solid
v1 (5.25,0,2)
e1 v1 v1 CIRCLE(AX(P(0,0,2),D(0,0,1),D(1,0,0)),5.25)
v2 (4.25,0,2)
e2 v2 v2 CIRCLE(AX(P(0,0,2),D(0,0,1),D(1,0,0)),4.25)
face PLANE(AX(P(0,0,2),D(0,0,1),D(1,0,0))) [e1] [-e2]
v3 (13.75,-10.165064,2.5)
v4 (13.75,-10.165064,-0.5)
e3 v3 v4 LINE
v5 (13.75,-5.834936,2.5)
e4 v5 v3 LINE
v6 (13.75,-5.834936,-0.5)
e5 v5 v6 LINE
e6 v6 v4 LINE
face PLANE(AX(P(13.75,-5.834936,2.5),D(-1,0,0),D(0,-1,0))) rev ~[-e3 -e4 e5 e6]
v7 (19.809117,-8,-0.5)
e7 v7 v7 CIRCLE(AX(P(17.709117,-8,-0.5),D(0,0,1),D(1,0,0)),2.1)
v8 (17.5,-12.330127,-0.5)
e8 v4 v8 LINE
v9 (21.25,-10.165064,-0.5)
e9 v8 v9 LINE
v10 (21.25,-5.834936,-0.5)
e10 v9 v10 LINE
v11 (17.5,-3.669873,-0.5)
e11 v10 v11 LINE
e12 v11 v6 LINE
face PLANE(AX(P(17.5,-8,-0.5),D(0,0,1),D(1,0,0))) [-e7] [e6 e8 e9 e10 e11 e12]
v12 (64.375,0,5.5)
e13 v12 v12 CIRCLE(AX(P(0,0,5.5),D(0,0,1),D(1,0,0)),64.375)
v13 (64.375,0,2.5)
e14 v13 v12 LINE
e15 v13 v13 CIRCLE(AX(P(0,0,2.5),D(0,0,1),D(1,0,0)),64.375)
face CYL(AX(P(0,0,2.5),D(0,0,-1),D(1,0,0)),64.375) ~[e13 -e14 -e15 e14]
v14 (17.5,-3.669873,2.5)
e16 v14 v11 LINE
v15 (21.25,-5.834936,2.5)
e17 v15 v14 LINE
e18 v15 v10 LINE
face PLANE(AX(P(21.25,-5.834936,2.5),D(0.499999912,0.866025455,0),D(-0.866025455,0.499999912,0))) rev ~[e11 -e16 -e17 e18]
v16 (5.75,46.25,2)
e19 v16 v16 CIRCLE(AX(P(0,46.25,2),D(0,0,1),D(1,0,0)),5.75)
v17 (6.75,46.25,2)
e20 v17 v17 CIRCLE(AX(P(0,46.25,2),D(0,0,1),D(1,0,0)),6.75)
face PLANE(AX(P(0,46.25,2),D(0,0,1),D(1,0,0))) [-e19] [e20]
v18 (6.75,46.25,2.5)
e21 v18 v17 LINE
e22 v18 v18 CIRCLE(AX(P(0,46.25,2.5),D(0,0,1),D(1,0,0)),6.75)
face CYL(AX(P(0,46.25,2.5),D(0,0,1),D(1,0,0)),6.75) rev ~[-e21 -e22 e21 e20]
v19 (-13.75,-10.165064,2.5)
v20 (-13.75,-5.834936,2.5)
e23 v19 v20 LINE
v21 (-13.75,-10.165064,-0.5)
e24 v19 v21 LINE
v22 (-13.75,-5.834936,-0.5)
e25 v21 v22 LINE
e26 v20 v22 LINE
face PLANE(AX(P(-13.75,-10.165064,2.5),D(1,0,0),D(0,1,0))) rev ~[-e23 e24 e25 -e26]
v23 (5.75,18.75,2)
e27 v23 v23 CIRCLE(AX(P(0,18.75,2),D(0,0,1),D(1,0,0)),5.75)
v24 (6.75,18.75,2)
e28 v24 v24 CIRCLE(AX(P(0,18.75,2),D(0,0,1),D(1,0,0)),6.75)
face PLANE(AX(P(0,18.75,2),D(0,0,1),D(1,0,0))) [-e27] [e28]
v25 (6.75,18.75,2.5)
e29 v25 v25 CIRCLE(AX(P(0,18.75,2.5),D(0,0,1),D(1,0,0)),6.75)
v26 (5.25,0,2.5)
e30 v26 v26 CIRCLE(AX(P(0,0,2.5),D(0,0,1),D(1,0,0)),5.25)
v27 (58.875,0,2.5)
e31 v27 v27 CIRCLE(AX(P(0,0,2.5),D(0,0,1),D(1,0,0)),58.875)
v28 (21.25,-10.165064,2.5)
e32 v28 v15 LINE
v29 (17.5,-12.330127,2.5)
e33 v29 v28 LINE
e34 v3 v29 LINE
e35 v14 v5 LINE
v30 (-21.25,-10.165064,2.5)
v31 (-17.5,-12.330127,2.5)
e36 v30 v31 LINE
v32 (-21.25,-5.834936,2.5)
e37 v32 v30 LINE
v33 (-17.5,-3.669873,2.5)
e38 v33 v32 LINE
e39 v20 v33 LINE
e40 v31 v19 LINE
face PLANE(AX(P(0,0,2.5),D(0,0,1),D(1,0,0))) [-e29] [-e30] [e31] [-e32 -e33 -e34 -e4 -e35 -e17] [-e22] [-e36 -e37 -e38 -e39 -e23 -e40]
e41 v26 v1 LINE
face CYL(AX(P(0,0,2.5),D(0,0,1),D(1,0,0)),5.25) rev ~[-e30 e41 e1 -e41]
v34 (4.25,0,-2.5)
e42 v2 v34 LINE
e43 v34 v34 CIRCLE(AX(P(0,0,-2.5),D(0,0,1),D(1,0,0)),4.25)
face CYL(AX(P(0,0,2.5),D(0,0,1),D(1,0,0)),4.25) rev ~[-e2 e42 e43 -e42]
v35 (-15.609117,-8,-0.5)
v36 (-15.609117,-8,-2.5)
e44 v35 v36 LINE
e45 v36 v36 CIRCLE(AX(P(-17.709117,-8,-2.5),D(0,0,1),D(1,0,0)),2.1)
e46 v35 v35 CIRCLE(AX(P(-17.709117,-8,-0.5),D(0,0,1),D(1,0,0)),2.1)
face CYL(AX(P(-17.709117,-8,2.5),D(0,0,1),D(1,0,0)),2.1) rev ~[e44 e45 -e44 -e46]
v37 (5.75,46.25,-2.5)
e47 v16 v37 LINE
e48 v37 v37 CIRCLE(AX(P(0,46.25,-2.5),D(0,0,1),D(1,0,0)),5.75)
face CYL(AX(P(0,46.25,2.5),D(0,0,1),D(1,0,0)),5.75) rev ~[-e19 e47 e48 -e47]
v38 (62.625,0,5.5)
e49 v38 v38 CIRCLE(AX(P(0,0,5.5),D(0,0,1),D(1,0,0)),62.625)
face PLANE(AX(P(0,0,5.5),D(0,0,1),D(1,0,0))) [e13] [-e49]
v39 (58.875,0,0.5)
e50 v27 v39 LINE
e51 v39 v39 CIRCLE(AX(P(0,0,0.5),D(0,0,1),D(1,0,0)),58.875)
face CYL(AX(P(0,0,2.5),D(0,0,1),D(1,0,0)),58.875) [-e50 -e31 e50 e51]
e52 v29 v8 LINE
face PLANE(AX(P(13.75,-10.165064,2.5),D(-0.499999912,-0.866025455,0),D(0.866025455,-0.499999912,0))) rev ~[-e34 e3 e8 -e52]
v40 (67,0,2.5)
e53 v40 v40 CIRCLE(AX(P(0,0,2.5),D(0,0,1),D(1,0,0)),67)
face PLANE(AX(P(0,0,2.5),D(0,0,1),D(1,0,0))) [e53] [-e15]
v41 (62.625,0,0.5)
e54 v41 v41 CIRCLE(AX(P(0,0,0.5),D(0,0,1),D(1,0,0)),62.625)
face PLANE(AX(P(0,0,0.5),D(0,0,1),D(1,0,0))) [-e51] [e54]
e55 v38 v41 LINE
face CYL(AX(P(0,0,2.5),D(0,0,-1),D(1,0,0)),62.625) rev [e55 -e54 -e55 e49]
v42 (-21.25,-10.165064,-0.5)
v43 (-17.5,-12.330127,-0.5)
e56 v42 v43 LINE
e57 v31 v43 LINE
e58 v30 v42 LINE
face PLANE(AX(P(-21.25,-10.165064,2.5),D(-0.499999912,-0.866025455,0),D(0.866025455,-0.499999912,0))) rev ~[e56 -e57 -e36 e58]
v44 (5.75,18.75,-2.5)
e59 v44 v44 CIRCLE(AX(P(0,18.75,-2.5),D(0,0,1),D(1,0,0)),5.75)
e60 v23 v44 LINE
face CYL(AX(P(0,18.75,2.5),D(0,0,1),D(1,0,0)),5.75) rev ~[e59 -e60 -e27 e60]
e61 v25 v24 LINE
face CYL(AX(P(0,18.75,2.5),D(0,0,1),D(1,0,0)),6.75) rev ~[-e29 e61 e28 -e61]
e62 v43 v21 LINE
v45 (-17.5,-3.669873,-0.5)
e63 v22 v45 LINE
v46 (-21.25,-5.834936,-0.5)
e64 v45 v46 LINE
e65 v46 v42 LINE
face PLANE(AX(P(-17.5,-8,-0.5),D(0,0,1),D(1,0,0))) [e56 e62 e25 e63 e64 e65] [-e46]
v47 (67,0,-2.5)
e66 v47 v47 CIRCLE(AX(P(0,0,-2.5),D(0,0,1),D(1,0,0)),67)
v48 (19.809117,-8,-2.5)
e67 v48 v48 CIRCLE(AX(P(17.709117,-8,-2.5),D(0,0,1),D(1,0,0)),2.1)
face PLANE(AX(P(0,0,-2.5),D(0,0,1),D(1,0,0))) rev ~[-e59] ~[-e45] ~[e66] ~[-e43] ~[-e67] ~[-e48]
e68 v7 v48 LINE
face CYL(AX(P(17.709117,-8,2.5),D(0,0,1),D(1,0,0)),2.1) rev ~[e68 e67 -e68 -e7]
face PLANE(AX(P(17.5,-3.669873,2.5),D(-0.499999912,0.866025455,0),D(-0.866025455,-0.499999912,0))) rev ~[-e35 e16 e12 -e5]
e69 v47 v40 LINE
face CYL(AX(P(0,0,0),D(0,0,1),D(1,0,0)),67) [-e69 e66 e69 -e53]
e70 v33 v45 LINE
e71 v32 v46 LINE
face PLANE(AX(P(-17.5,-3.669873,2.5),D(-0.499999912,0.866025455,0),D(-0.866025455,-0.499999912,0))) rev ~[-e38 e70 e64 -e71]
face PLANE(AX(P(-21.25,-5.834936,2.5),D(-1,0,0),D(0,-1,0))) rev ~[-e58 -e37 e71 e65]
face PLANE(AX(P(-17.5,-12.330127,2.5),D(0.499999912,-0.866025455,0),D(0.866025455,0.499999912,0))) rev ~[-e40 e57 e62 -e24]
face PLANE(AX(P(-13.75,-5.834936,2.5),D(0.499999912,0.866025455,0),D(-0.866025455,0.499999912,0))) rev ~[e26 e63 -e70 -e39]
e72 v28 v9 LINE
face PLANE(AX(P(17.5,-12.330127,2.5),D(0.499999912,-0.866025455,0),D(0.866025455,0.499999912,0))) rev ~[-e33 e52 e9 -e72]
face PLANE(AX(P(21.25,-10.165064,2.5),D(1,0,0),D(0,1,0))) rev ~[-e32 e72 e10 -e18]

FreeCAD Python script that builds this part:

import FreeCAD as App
import Part
import Sketcher
from FreeCAD import Vector
Q = App.Units.Quantity

doc = App.newDocument("Part")
body = doc.addObject("PartDesign::Body", "Body")

# Sketch on XY plane
sketch1 = body.newObject("Sketcher::SketchObject", "Sketch")
sketch1.AttachmentSupport = (doc.getObject("XY_Plane"), [""])
sketch1.MapMode = "FlatFace"
sketch1.addGeometry(Part.Circle(Vector(0, 0, 0), Vector(0, 0, 1), 67), False)
sketch1.addConstraint(Sketcher.Constraint("Coincident", 0, 3, -1, 1))
sketch1.addConstraint(Sketcher.Constraint("Diameter", 0, 134.0))
pad1 = body.newObject("PartDesign::Pad", "Pad")
pad1.Profile = sketch1
pad1.Length = 5
pad1.Midplane = True

# Sketch on XY plane
sketch2 = body.newObject("Sketcher::SketchObject", "Sketch001")
sketch2.AttachmentSupport = (doc.getObject("XY_Plane"), [""])
sketch2.MapMode = "FlatFace"
sketch2.AttachmentOffset = App.Placement(Vector(0, 0, 2.5), App.Rotation())
sketch2.addGeometry(Part.Circle(Vector(0, 0, 0), Vector(0, 0, 1), 64), False)
sketch2.addGeometry(Part.Circle(Vector(0, 0, 0), Vector(0, 0, 1), 63), False)
sketch2.addConstraint(Sketcher.Constraint("Coincident", 0, 3, -1, 1))
sketch2.addConstraint(Sketcher.Constraint("Coincident", 1, 3, -1, 1))
sketch2.addConstraint(Sketcher.Constraint("Diameter", 0, 128.75))
sketch2.addConstraint(Sketcher.Constraint("Diameter", 1, 125.25))
pad2 = body.newObject("PartDesign::Pad", "Pad001")
pad2.Profile = sketch2
pad2.Length = 3

# Sketch on XY plane
sketch3 = body.newObject("Sketcher::SketchObject", "Sketch002")
sketch3.AttachmentSupport = (doc.getObject("XY_Plane"), [""])
sketch3.MapMode = "FlatFace"
sketch3.AttachmentOffset = App.Placement(Vector(0, 0, 2.5), App.Rotation())
sketch3.addGeometry(Part.Circle(Vector(0, 0, 0), Vector(0, 0, 1), 63), False)
sketch3.addGeometry(Part.Circle(Vector(0, 0, 0), Vector(0, 0, 1), 59), False)
sketch3.addConstraint(Sketcher.Constraint("Coincident", 0, 3, -1, 1))
sketch3.addConstraint(Sketcher.Constraint("Coincident", 1, 3, -1, 1))
sketch3.addConstraint(Sketcher.Constraint("Diameter", 0, 125.25))
sketch3.addConstraint(Sketcher.Constraint("Diameter", 1, 117.75))
pocket1 = body.newObject("PartDesign::Pocket", "Pocket")
pocket1.Profile = sketch3
pocket1.Length = 2

# Sketch on XY plane
sketch4 = body.newObject("Sketcher::SketchObject", "Sketch003")
sketch4.AttachmentSupport = (doc.getObject("XY_Plane"), [""])
sketch4.MapMode = "FlatFace"
sketch4.AttachmentOffset = App.Placement(Vector(0, 0, 2.5), App.Rotation())
sketch4.addGeometry(Part.Circle(Vector(0, 0, 0), Vector(0, 0, 1), 4.2), False)
sketch4.addConstraint(Sketcher.Constraint("Coincident", 0, 3, -1, 1))
sketch4.addConstraint(Sketcher.Constraint("Diameter", 0, 8.5))
pocket2 = body.newObject("PartDesign::Pocket", "Pocket001")
pocket2.Profile = sketch4
pocket2.Type = "ThroughAll"

# Sketch on XY plane
sketch5 = body.newObject("Sketcher::SketchObject", "Sketch004")
sketch5.AttachmentSupport = (doc.getObject("XY_Plane"), [""])
sketch5.MapMode = "FlatFace"
sketch5.AttachmentOffset = App.Placement(Vector(0, 0, 2.5), App.Rotation())
sketch5.addGeometry(Part.Circle(Vector(0, 19, 0), Vector(0, 0, 1), 6), False)
sketch5.addConstraint(Sketcher.Constraint("PointOnObject", 0, 3, -2))
sketch5.addConstraint(Sketcher.Constraint("Diameter", 0, 11.5))
sketch5.addConstraint(Sketcher.Constraint("DistanceY", -1, 1, 0, 3, 18.75))
pocket3 = body.newObject("PartDesign::Pocket", "Pocket002")
pocket3.Profile = sketch5
pocket3.Type = "ThroughAll"

# Sketch on XY plane
sketch6 = body.newObject("Sketcher::SketchObject", "Sketch005")
sketch6.AttachmentSupport = (doc.getObject("XY_Plane"), [""])
sketch6.MapMode = "FlatFace"
sketch6.AttachmentOffset = App.Placement(Vector(0, 0, 2.5), App.Rotation())
sketch6.addGeometry(Part.Circle(Vector(0, 46, 0), Vector(0, 0, 1), 6), False)
sketch6.addConstraint(Sketcher.Constraint("PointOnObject", 0, 3, -2))
sketch6.addConstraint(Sketcher.Constraint("Diameter", 0, 11.5))
sketch6.addConstraint(Sketcher.Constraint("DistanceY", -1, 1, 0, 3, 46.25))
pocket4 = body.newObject("PartDesign::Pocket", "Pocket003")
pocket4.Profile = sketch6
pocket4.Type = "ThroughAll"

# Sketch on XY plane
sketch7 = body.newObject("Sketcher::SketchObject", "Sketch006")
sketch7.AttachmentSupport = (doc.getObject("XY_Plane"), [""])
sketch7.MapMode = "FlatFace"
sketch7.AttachmentOffset = App.Placement(Vector(0, 0, 2.5), App.Rotation())
sketch7.addGeometry(Part.Circle(Vector(-17.7, -8, 0), Vector(0, 0, 1), 2.1), False)
sketch7.addGeometry(Part.Circle(Vector(17.7, -8, 0), Vector(0, 0, 1), 2.1), False)
sketch7.addConstraint(Sketcher.Constraint("Equal", 0, 1))
sketch7.addConstraint(Sketcher.Constraint("Symmetric", 0, 3, 1, 3, -2))
sketch7.addConstraint(Sketcher.Constraint("Diameter", 0, 4.2))
sketch7.addConstraint(Sketcher.Constraint("DistanceY", 0, 3, -1, 1, 8.0))
sketch7.addConstraint(Sketcher.Constraint("DistanceX", 0, 3, -1, 1, 17.709117))
pocket5 = body.newObject("PartDesign::Pocket", "Pocket004")
pocket5.Profile = sketch7
pocket5.Type = "ThroughAll"

# Sketch on XY plane
sketch8 = body.newObject("Sketcher::SketchObject", "Sketch007")
sketch8.AttachmentSupport = (doc.getObject("XY_Plane"), [""])
sketch8.MapMode = "FlatFace"
sketch8.AttachmentOffset = App.Placement(Vector(0, 0, 2.5), App.Rotation())
sketch8.addGeometry(Part.Circle(Vector(0, 0, 0), Vector(0, 0, 1), 5), False)
sketch8.addConstraint(Sketcher.Constraint("Coincident", 0, 3, -1, 1))
sketch8.addConstraint(Sketcher.Constraint("Diameter", 0, 10.5))
pocket6 = body.newObject("PartDesign::Pocket", "Pocket005")
pocket6.Profile = sketch8
pocket6.Length = 0.5

# Sketch on XY plane
sketch9 = body.newObject("Sketcher::SketchObject", "Sketch008")
sketch9.AttachmentSupport = (doc.getObject("XY_Plane"), [""])
sketch9.MapMode = "FlatFace"
sketch9.AttachmentOffset = App.Placement(Vector(0, 0, 2.5), App.Rotation())
sketch9.addGeometry(Part.Circle(Vector(0, 19, 0), Vector(0, 0, 1), 7), False)
sketch9.addConstraint(Sketcher.Constraint("PointOnObject", 0, 3, -2))
sketch9.addConstraint(Sketcher.Constraint("Diameter", 0, 13.5))
sketch9.addConstraint(Sketcher.Constraint("DistanceY", -1, 1, 0, 3, 18.75))
pocket7 = body.newObject("PartDesign::Pocket", "Pocket006")
pocket7.Profile = sketch9
pocket7.Length = 0.5

# Sketch on XY plane
sketch10 = body.newObject("Sketcher::SketchObject", "Sketch009")
sketch10.AttachmentSupport = (doc.getObject("XY_Plane"), [""])
sketch10.MapMode = "FlatFace"
sketch10.AttachmentOffset = App.Placement(Vector(0, 0, 2.5), App.Rotation())
sketch10.addGeometry(Part.Circle(Vector(0, 46, 0), Vector(0, 0, 1), 7), False)
sketch10.addGeometry(Part.Circle(Vector(0, 46, 0), Vector(0, 0, 1), 6), False)
sketch10.addConstraint(Sketcher.Constraint("Coincident", 1, 3, 0, 3))
sketch10.addConstraint(Sketcher.Constraint("PointOnObject", 0, 3, -2))
sketch10.addConstraint(Sketcher.Constraint("Diameter", 0, 13.5))
sketch10.addConstraint(Sketcher.Constraint("Diameter", 1, 11.5))
sketch10.addConstraint(Sketcher.Constraint("DistanceY", -1, 1, 0, 3, 46.25))
pocket8 = body.newObject("PartDesign::Pocket", "Pocket007")
pocket8.Profile = sketch10
pocket8.Length = 0.5

# Sketch on XY plane
sketch11 = body.newObject("Sketcher::SketchObject", "Sketch010")
sketch11.AttachmentSupport = (doc.getObject("XY_Plane"), [""])
sketch11.MapMode = "FlatFace"
sketch11.AttachmentOffset = App.Placement(Vector(0, 0, 2.5), App.Rotation())
sketch11.addGeometry(Part.LineSegment(Vector(-13.8, -10.2, 0), Vector(-13.8, -5.8, 0)), False)
sketch11.addGeometry(Part.LineSegment(Vector(-13.8, -5.8, 0), Vector(-17.5, -3.7, 0)), False)
sketch11.addGeometry(Part.LineSegment(Vector(-17.5, -3.7, 0), Vector(-21.2, -5.8, 0)), False)
sketch11.addGeometry(Part.LineSegment(Vector(-21.2, -5.8, 0), Vector(-21.2, -10.2, 0)), False)
sketch11.addGeometry(Part.LineSegment(Vector(-21.2, -10.2, 0), Vector(-17.5, -12.3, 0)), False)
sketch11.addGeometry(Part.LineSegment(Vector(-17.5, -12.3, 0), Vector(-13.8, -10.2, 0)), False)
sketch11.addGeometry(Part.LineSegment(Vector(21.2, -10.2, 0), Vector(21.2, -5.8, 0)), False)
sketch11.addGeometry(Part.LineSegment(Vector(21.2, -5.8, 0), Vector(17.5, -3.7, 0)), False)
sketch11.addGeometry(Part.LineSegment(Vector(17.5, -3.7, 0), Vector(13.8, -5.8, 0)), False)
sketch11.addGeometry(Part.LineSegment(Vector(13.8, -5.8, 0), Vector(13.8, -10.2, 0)), False)
sketch11.addGeometry(Part.LineSegment(Vector(13.8, -10.2, 0), Vector(17.5, -12.3, 0)), False)
sketch11.addGeometry(Part.LineSegment(Vector(17.5, -12.3, 0), Vector(21.2, -10.2, 0)), False)
sketch11.addConstraint(Sketcher.Constraint("Coincident", 0, 2, 1, 1))
sketch11.addConstraint(Sketcher.Constraint("Coincident", 1, 2, 2, 1))
sketch11.addConstraint(Sketcher.Constraint("Coincident", 2, 2, 3, 1))
sketch11.addConstraint(Sketcher.Constraint("Coincident", 3, 2, 4, 1))
sketch11.addConstraint(Sketcher.Constraint("Coincident", 4, 2, 5, 1))
sketch11.addConstraint(Sketcher.Constraint("Coincident", 5, 2, 0, 1))
sketch11.addConstraint(Sketcher.Constraint("Coincident", 6, 2, 7, 1))
sketch11.addConstraint(Sketcher.Constraint("Coincident", 7, 2, 8, 1))
sketch11.addConstraint(Sketcher.Constraint("Coincident", 8, 2, 9, 1))
sketch11.addConstraint(Sketcher.Constraint("Coincident", 9, 2, 10, 1))
sketch11.addConstraint(Sketcher.Constraint("Coincident", 10, 2, 11, 1))
sketch11.addConstraint(Sketcher.Constraint("Coincident", 11, 2, 6, 1))
sketch11.addConstraint(Sketcher.Constraint("Vertical", 0))
sketch11.addConstraint(Sketcher.Constraint("Vertical", 3))
sketch11.addConstraint(Sketcher.Constraint("Vertical", 6))
sketch11.addConstraint(Sketcher.Constraint("Vertical", 9))
sketch11.addConstraint(Sketcher.Constraint("Symmetric", 2, 2, 6, 2, -2))
sketch11.addConstraint(Sketcher.Constraint("Symmetric", 1, 2, 7, 2, -2))
sketch11.addConstraint(Sketcher.Constraint("Symmetric", 0, 2, 8, 2, -2))
sketch11.addConstraint(Sketcher.Constraint("Symmetric", 4, 2, 10, 2, -2))
sketch11.addConstraint(Sketcher.Constraint("Parallel", 1, 4))
sketch11.addConstraint(Sketcher.Constraint("Parallel", 2, 5))
sketch11.addConstraint(Sketcher.Constraint("Parallel", 4, 7))
sketch11.addConstraint(Sketcher.Constraint("Parallel", 7, 10))
sketch11.addConstraint(Sketcher.Constraint("Parallel", 8, 11))
sketch11.addConstraint(Sketcher.Constraint("Horizontal", 0, 2, 2, 2))
sketch11.addConstraint(Sketcher.Constraint("Horizontal", 3, 2, 5, 2))
sketch11.addConstraint(Sketcher.Constraint("Angle", 1, Q("150.000006 deg")))
sketch11.addConstraint(Sketcher.Constraint("DistanceX", 0, 2, 6, 2, 35.0))
sketch11.addConstraint(Sketcher.Constraint("DistanceX", 2, 2, 0, 2, 7.5))
sketch11.addConstraint(Sketcher.Constraint("DistanceY", 0, 1, 0, 2, 4.330128))
sketch11.addConstraint(Sketcher.Constraint("DistanceY", 0, 2, -1, 1, 5.834936))
pocket9 = body.newObject("PartDesign::Pocket", "Pocket008")
pocket9.Profile = sketch11
pocket9.Length = 3

doc.recompute()
